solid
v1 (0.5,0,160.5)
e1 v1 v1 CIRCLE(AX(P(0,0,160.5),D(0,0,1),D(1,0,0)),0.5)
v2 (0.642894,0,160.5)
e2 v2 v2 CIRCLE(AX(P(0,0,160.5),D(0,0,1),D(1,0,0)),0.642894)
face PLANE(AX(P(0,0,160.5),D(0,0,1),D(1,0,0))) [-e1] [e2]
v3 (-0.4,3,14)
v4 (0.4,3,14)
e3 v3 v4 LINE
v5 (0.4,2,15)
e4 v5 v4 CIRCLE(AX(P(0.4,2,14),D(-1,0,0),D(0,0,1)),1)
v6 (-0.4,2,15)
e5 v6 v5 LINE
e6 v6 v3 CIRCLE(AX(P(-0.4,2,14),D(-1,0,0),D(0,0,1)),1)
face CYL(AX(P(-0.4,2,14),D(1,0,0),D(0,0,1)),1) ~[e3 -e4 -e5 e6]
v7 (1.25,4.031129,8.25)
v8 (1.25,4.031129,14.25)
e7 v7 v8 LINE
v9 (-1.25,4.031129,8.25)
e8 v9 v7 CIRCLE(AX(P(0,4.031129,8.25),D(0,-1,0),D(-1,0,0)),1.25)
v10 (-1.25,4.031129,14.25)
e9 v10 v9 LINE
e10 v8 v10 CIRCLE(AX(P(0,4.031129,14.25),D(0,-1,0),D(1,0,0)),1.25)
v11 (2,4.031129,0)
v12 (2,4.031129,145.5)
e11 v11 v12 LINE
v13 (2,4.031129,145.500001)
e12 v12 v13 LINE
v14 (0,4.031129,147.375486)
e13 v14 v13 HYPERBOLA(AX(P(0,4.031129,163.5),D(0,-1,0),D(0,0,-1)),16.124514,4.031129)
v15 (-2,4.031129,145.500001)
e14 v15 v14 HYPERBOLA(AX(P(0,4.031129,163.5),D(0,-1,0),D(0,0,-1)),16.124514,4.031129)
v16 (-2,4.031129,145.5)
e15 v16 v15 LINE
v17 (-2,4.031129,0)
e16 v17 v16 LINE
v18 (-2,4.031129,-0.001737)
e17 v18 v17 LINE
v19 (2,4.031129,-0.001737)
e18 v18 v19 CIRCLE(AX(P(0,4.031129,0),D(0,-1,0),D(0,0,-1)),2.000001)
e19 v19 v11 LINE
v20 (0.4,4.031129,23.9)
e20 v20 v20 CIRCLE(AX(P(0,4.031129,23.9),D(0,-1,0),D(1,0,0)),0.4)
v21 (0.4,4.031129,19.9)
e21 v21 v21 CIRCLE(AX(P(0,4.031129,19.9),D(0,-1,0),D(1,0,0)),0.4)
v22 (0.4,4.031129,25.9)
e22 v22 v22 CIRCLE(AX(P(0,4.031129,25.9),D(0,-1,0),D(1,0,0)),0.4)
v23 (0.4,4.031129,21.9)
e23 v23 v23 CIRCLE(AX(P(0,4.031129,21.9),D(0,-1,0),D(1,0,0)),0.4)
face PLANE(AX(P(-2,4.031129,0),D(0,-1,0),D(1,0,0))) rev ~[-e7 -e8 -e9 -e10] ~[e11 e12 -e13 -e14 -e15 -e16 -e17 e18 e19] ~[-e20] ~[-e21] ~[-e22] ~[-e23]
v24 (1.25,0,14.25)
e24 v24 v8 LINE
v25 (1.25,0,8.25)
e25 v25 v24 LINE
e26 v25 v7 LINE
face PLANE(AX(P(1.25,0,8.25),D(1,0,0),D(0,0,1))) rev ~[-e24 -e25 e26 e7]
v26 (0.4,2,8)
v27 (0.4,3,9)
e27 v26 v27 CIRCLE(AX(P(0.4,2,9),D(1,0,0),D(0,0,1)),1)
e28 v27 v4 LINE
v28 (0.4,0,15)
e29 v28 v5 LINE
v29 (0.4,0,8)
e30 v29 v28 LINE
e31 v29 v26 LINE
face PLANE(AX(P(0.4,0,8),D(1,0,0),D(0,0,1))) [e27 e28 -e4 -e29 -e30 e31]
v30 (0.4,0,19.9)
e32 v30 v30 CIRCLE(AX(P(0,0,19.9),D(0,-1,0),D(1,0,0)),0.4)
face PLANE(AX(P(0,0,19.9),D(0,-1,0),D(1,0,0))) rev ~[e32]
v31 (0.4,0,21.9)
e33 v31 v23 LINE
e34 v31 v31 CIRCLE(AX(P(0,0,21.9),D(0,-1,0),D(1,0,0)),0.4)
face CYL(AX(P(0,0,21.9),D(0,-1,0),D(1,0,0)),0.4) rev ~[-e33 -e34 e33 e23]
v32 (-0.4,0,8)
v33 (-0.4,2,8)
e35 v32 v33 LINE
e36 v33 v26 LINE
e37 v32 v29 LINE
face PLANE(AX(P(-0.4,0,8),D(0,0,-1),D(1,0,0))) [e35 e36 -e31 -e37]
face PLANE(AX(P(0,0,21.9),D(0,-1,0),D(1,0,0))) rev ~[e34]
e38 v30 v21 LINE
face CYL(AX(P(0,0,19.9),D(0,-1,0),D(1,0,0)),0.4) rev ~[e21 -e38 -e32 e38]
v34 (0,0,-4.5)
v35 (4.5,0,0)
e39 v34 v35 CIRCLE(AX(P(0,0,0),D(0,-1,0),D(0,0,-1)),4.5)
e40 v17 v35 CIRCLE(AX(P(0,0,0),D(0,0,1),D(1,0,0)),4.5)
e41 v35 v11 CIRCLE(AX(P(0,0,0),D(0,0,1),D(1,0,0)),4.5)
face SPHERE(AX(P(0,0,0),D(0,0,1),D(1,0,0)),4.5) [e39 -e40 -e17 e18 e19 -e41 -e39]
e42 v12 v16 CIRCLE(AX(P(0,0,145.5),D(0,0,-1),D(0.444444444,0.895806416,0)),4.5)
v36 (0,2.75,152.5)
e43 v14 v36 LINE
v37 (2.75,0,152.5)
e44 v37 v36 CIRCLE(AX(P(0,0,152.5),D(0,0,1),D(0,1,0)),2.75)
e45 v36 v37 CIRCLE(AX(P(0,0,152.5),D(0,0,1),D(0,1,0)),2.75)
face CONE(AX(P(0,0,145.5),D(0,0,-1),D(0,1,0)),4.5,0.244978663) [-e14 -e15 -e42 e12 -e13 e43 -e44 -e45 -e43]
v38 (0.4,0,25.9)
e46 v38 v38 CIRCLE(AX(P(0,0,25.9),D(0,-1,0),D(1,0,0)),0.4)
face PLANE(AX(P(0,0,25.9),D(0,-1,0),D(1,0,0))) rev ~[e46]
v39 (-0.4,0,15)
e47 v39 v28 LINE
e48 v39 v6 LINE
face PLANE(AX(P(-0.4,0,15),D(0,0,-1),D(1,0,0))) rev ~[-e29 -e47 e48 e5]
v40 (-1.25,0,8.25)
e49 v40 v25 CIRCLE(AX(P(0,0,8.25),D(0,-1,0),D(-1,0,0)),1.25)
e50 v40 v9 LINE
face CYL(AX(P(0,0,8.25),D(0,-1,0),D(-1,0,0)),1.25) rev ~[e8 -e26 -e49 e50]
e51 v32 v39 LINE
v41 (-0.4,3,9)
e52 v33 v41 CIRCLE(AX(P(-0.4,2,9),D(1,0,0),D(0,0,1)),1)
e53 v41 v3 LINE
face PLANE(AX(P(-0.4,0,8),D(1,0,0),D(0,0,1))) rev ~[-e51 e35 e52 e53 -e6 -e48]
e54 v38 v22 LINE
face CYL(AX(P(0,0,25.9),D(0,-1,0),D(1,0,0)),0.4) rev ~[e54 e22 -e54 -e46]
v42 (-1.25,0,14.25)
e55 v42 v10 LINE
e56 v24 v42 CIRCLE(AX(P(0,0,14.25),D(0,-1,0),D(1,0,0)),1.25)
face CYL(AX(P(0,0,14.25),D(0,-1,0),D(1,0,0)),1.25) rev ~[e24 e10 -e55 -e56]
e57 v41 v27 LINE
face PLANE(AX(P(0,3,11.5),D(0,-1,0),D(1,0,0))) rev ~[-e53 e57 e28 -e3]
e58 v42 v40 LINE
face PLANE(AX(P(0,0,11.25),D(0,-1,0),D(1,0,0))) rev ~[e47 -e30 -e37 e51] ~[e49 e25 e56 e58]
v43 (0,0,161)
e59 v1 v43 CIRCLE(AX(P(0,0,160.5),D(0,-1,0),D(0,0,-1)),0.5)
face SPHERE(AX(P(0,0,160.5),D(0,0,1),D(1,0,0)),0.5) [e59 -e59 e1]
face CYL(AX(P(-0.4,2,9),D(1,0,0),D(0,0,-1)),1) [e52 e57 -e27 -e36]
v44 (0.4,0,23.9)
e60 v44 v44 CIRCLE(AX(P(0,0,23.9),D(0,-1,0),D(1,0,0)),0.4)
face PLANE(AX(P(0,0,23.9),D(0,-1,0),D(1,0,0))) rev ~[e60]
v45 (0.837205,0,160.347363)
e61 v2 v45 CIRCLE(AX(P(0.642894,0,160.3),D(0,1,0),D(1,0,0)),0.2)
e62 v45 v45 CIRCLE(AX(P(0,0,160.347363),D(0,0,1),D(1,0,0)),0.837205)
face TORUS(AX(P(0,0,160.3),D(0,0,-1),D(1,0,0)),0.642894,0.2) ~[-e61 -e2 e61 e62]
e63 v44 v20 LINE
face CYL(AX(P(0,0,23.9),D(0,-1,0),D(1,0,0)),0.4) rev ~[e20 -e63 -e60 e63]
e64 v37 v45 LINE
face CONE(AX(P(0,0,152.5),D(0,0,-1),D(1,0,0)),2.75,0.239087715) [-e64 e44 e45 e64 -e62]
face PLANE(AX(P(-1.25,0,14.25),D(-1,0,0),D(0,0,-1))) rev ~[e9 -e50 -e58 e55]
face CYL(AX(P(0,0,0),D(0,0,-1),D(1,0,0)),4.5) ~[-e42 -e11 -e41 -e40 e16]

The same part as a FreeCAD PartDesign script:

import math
import FreeCAD as App
import Part
import Sketcher

V = App.Vector


def edges_at(feature, points):
    """Names of the edges that pass closest to the given points."""
    edges = feature.Shape.Edges
    near = lambda p: min(range(len(edges)), key=lambda i: edges[i].distToShape(Part.Vertex(*p))[0])
    return sorted({f"Edge{near(p) + 1}" for p in points})


def add_polygon(sketch, points):
    """Adds a closed chain of lines whose ends are joined by coincident constraints."""
    first, n = sketch.GeometryCount, len(points)
    for a, b in zip(points, points[1:] + points[:1]):
        sketch.addGeometry(Part.LineSegment(App.Vector(*a, 0), App.Vector(*b, 0)), False)
    for i in range(n):
        sketch.addConstraint(Sketcher.Constraint("Coincident", first + i, 2, first + (i + 1) % n, 1))

doc = App.newDocument("Part")
body = doc.addObject("PartDesign::Body", "Body")

# Sketch on XY plane
sketch1 = doc.addObject("Sketcher::SketchObject", "Sketch")
body.addObject(sketch1)
sketch1.AttachmentSupport = (doc.XY_Plane, [""])
sketch1.MapMode = "FlatFace"
sketch1.addGeometry(Part.Circle(V(0, 0, 0), V(0, 0, 1), 4.5), False)
sketch1.addConstraint([
    Sketcher.Constraint("Coincident", 0, 3, -1, 1),
    Sketcher.Constraint("Diameter", 0, 9.0),
])
pad1 = doc.addObject("PartDesign::Pad", "Pad")
body.addObject(pad1)
pad1.Profile = sketch1
pad1.Length = 145.5

# Sketch on YZ plane
sketch2 = doc.addObject("Sketcher::SketchObject", "Sketch001")
body.addObject(sketch2)
sketch2.AttachmentSupport = (doc.YZ_Plane, [""])
sketch2.MapMode = "FlatFace"
add_polygon(sketch2, [(0, 145.5), (4.5, 145.5), (2.8, 152.5), (0, 152.5)])  # lines 0-3
sketch2.addConstraint([
    Sketcher.Constraint("Horizontal", 0),
    Sketcher.Constraint("Horizontal", 2),
    Sketcher.Constraint("Vertical", 3),
    Sketcher.Constraint("PointOnObject", 2, 2, -2),
    Sketcher.Constraint("DistanceY", 3, 2, 3, 1, 7.0),
    Sketcher.Constraint("DistanceX", 0, 1, 0, 2, 4.5),
    Sketcher.Constraint("DistanceX", 2, 2, 2, 1, 2.75),
    Sketcher.Constraint("DistanceY", -1, 1, 0, 2, 145.5),
])
revolution = doc.addObject("PartDesign::Revolution", "Revolution")
body.addObject(revolution)
revolution.Profile = sketch2
revolution.ReferenceAxis = (sketch2, ["V_Axis"])
revolution.Angle = 360

# Sketch on XZ plane
sketch3 = doc.addObject("Sketcher::SketchObject", "Sketch002")
body.addObject(sketch3)
sketch3.AttachmentSupport = (doc.XZ_Plane, [""])
sketch3.MapMode = "FlatFace"
sketch3.addGeometry([
    Part.ArcOfCircle(Part.Circle(V(0, 0, 0), V(0, 0, 1), 4.5), math.radians(-90), math.radians(90)),
    Part.LineSegment(V(0, 4.5, 0), V(0, -4.5, 0)),
], False)
sketch3.addConstraint([
    Sketcher.Constraint("Coincident", 0, 1, 1, 2),
    Sketcher.Constraint("Coincident", 1, 1, 0, 2),
    Sketcher.Constraint("Vertical", 1),
    Sketcher.Constraint("Coincident", 0, 3, -1, 1),
    Sketcher.Constraint("PointOnObject", 0, 1, -2),
    Sketcher.Constraint("Radius", 0, 4.5),
])
revolution2 = doc.addObject("PartDesign::Revolution", "Revolution001")
body.addObject(revolution2)
revolution2.Profile = sketch3
revolution2.ReferenceAxis = (sketch3, ["V_Axis"])
revolution2.Angle = 360

# Sketch on XY plane
sketch4 = doc.addObject("Sketcher::SketchObject", "Sketch003")
body.addObject(sketch4)
sketch4.AttachmentSupport = (doc.XY_Plane, [""])
sketch4.MapMode = "FlatFace"
add_polygon(sketch4, [(-2, 8), (-2, 4), (2, 4), (2, 8)])  # lines 0-3
sketch4.addConstraint([
    Sketcher.Constraint("Vertical", 0),
    Sketcher.Constraint("Horizontal", 1),
    Sketcher.Constraint("Vertical", 2),
    Sketcher.Constraint("Horizontal", 3),
    Sketcher.Constraint("DistanceX", 1, 1, 1, 2, 4.0),
    Sketcher.Constraint("DistanceX", 0, 2, -1, 1, 2.0),
    Sketcher.Constraint("DistanceY", 0, 2, 0, 1, 3.989153),
    Sketcher.Constraint("DistanceY", -1, 1, 0, 2, 4.031129),
])
pocket1 = doc.addObject("PartDesign::Pocket", "Pocket")
body.addObject(pocket1)
pocket1.Profile = sketch4
pocket1.Length = 300
pocket1.Midplane = True

# Sketch on XZ plane
sketch5 = doc.addObject("Sketcher::SketchObject", "Sketch004")
body.addObject(sketch5)
sketch5.AttachmentSupport = (doc.XZ_Plane, [""])
sketch5.MapMode = "FlatFace"
sketch5.addGeometry([
    Part.Circle(V(0, 19.9, 0), V(0, 0, 1), 0.4),  # 0
    Part.Circle(V(0, 21.9, 0), V(0, 0, 1), 0.4),  # 1
    Part.Circle(V(0, 23.9, 0), V(0, 0, 1), 0.4),  # 2
    Part.Circle(V(0, 25.9, 0), V(0, 0, 1), 0.4),  # 3
    Part.LineSegment(V(-1.25, 14.25, 0), V(-1.25, 8.25, 0)),  # 4
    Part.ArcOfCircle(Part.Circle(V(0, 8.25, 0), V(0, 0, 1), 1.25), math.radians(180), math.radians(360)),  # 5
    Part.LineSegment(V(1.25, 8.25, 0), V(1.25, 14.25, 0)),  # 6
    Part.ArcOfCircle(Part.Circle(V(0, 14.25, 0), V(0, 0, 1), 1.25), math.radians(0), math.radians(180)),  # 7
], False)
sketch5.addConstraint([
    Sketcher.Constraint("Tangent", 4, 2, 5, 1),
    Sketcher.Constraint("Tangent", 5, 2, 6, 1),
    Sketcher.Constraint("Tangent", 6, 2, 7, 1),
    Sketcher.Constraint("Tangent", 7, 2, 4, 1),
    Sketcher.Constraint("Vertical", 4),
    Sketcher.Constraint("Vertical", 6),
    Sketcher.Constraint("Equal", 0, 1),
    Sketcher.Constraint("Equal", 1, 2),
    Sketcher.Constraint("Equal", 2, 3),
    Sketcher.Constraint("PointOnObject", 0, 3, -2),
    Sketcher.Constraint("PointOnObject", 1, 3, -2),
    Sketcher.Constraint("PointOnObject", 2, 3, -2),
    Sketcher.Constraint("PointOnObject", 3, 3, -2),
    Sketcher.Constraint("PointOnObject", 5, 3, -2),
    Sketcher.Constraint("Diameter", 0, 0.8),
    Sketcher.Constraint("DistanceY", 4, 2, 4, 1, 6.0),
    Sketcher.Constraint("Radius", 5, 1.25),
    Sketcher.Constraint("DistanceY", 0, 3, 1, 3, 2.0),
    Sketcher.Constraint("DistanceY", 1, 3, 2, 3, 2.0),
    Sketcher.Constraint("DistanceY", 2, 3, 3, 3, 2.0),
    Sketcher.Constraint("DistanceY", -1, 1, 0, 3, 19.9),
    Sketcher.Constraint("DistanceY", -1, 1, 5, 3, 8.25),
])
pocket2 = doc.addObject("PartDesign::Pocket", "Pocket001")
body.addObject(pocket2)
pocket2.Profile = sketch5
pocket2.Length = 10

# Sketch on XZ plane
sketch6 = doc.addObject("Sketcher::SketchObject", "Sketch005")
body.addObject(sketch6)
sketch6.AttachmentSupport = (doc.XZ_Plane, [""])
sketch6.MapMode = "FlatFace"
add_polygon(sketch6, [(0, 152.5), (2.8, 152.5), (0.8, 160.5), (0, 160.5)])  # lines 0-3
sketch6.addConstraint([
    Sketcher.Constraint("Horizontal", 0),
    Sketcher.Constraint("Horizontal", 2),
    Sketcher.Constraint("Vertical", 3),
    Sketcher.Constraint("PointOnObject", 2, 2, -2),
    Sketcher.Constraint("DistanceY", 3, 2, 3, 1, 8.0),
    Sketcher.Constraint("DistanceX", 2, 2, 2, 1, 0.8),
    Sketcher.Constraint("DistanceX", 0, 1, 0, 2, 2.75),
    Sketcher.Constraint("DistanceY", -1, 1, 0, 2, 152.5),
])
revolution3 = doc.addObject("PartDesign::Revolution", "Revolution002")
body.addObject(revolution3)
revolution3.Profile = sketch6
revolution3.ReferenceAxis = (sketch6, ["V_Axis"])
revolution3.Angle = 360

# Sketch on XZ plane
sketch7 = doc.addObject("Sketcher::SketchObject", "Sketch006")
body.addObject(sketch7)
sketch7.AttachmentSupport = (doc.XZ_Plane, [""])
sketch7.MapMode = "FlatFace"
sketch7.addGeometry([
    Part.ArcOfCircle(Part.Circle(V(0, 160.5, 0), V(0, 0, 1), 0.5), math.radians(-90), math.radians(90)),
    Part.LineSegment(V(0, 161, 0), V(0, 160, 0)),
], False)
sketch7.addConstraint([
    Sketcher.Constraint("Coincident", 0, 1, 1, 2),
    Sketcher.Constraint("Coincident", 1, 1, 0, 2),
    Sketcher.Constraint("Vertical", 1),
    Sketcher.Constraint("PointOnObject", 0, 3, -2),
    Sketcher.Constraint("PointOnObject", 0, 1, -2),
    Sketcher.Constraint("Radius", 0, 0.5),
    Sketcher.Constraint("DistanceY", -1, 1, 0, 1, 160.0),
])
revolution4 = doc.addObject("PartDesign::Revolution", "Revolution003")
body.addObject(revolution4)
revolution4.Profile = sketch7
revolution4.ReferenceAxis = (sketch7, ["V_Axis"])
revolution4.Angle = 360
doc.recompute()

fillet = doc.addObject("PartDesign::Fillet", "Fillet")
body.addObject(fillet)
fillet.Base = (revolution4, edges_at(revolution4, [(-0.8, 0, 160.5)]))
fillet.Radius = 0.2

# Sketch on XZ plane
sketch8 = doc.addObject("Sketcher::SketchObject", "Sketch007")
body.addObject(sketch8)
sketch8.AttachmentSupport = (doc.XZ_Plane, [""])
sketch8.MapMode = "FlatFace"
add_polygon(sketch8, [(-0.4, 15), (-0.4, 8), (0.4, 8), (0.4, 15)])  # lines 0-3
sketch8.addConstraint([
    Sketcher.Constraint("Vertical", 0),
    Sketcher.Constraint("Horizontal", 1),
    Sketcher.Constraint("Vertical", 2),
    Sketcher.Constraint("Horizontal", 3),
    Sketcher.Constraint("DistanceY", 0, 2, 0, 1, 7.0),
    Sketcher.Constraint("DistanceX", 1, 1, 1, 2, 0.8),
    Sketcher.Constraint("DistanceY", -1, 1, 0, 2, 8.0),
    Sketcher.Constraint("DistanceX", 0, 2, -1, 1, 0.4),
])
pad2 = doc.addObject("PartDesign::Pad", "Pad001")
body.addObject(pad2)
pad2.Profile = sketch8
pad2.Length = 3
pad2.Reversed = True
doc.recompute()

fillet2 = doc.addObject("PartDesign::Fillet", "Fillet001")
body.addObject(fillet2)
fillet2.Base = (pad2, edges_at(pad2, [(0, 3, 8), (0, 3, 15)]))
fillet2.Radius = 1

doc.recompute()
